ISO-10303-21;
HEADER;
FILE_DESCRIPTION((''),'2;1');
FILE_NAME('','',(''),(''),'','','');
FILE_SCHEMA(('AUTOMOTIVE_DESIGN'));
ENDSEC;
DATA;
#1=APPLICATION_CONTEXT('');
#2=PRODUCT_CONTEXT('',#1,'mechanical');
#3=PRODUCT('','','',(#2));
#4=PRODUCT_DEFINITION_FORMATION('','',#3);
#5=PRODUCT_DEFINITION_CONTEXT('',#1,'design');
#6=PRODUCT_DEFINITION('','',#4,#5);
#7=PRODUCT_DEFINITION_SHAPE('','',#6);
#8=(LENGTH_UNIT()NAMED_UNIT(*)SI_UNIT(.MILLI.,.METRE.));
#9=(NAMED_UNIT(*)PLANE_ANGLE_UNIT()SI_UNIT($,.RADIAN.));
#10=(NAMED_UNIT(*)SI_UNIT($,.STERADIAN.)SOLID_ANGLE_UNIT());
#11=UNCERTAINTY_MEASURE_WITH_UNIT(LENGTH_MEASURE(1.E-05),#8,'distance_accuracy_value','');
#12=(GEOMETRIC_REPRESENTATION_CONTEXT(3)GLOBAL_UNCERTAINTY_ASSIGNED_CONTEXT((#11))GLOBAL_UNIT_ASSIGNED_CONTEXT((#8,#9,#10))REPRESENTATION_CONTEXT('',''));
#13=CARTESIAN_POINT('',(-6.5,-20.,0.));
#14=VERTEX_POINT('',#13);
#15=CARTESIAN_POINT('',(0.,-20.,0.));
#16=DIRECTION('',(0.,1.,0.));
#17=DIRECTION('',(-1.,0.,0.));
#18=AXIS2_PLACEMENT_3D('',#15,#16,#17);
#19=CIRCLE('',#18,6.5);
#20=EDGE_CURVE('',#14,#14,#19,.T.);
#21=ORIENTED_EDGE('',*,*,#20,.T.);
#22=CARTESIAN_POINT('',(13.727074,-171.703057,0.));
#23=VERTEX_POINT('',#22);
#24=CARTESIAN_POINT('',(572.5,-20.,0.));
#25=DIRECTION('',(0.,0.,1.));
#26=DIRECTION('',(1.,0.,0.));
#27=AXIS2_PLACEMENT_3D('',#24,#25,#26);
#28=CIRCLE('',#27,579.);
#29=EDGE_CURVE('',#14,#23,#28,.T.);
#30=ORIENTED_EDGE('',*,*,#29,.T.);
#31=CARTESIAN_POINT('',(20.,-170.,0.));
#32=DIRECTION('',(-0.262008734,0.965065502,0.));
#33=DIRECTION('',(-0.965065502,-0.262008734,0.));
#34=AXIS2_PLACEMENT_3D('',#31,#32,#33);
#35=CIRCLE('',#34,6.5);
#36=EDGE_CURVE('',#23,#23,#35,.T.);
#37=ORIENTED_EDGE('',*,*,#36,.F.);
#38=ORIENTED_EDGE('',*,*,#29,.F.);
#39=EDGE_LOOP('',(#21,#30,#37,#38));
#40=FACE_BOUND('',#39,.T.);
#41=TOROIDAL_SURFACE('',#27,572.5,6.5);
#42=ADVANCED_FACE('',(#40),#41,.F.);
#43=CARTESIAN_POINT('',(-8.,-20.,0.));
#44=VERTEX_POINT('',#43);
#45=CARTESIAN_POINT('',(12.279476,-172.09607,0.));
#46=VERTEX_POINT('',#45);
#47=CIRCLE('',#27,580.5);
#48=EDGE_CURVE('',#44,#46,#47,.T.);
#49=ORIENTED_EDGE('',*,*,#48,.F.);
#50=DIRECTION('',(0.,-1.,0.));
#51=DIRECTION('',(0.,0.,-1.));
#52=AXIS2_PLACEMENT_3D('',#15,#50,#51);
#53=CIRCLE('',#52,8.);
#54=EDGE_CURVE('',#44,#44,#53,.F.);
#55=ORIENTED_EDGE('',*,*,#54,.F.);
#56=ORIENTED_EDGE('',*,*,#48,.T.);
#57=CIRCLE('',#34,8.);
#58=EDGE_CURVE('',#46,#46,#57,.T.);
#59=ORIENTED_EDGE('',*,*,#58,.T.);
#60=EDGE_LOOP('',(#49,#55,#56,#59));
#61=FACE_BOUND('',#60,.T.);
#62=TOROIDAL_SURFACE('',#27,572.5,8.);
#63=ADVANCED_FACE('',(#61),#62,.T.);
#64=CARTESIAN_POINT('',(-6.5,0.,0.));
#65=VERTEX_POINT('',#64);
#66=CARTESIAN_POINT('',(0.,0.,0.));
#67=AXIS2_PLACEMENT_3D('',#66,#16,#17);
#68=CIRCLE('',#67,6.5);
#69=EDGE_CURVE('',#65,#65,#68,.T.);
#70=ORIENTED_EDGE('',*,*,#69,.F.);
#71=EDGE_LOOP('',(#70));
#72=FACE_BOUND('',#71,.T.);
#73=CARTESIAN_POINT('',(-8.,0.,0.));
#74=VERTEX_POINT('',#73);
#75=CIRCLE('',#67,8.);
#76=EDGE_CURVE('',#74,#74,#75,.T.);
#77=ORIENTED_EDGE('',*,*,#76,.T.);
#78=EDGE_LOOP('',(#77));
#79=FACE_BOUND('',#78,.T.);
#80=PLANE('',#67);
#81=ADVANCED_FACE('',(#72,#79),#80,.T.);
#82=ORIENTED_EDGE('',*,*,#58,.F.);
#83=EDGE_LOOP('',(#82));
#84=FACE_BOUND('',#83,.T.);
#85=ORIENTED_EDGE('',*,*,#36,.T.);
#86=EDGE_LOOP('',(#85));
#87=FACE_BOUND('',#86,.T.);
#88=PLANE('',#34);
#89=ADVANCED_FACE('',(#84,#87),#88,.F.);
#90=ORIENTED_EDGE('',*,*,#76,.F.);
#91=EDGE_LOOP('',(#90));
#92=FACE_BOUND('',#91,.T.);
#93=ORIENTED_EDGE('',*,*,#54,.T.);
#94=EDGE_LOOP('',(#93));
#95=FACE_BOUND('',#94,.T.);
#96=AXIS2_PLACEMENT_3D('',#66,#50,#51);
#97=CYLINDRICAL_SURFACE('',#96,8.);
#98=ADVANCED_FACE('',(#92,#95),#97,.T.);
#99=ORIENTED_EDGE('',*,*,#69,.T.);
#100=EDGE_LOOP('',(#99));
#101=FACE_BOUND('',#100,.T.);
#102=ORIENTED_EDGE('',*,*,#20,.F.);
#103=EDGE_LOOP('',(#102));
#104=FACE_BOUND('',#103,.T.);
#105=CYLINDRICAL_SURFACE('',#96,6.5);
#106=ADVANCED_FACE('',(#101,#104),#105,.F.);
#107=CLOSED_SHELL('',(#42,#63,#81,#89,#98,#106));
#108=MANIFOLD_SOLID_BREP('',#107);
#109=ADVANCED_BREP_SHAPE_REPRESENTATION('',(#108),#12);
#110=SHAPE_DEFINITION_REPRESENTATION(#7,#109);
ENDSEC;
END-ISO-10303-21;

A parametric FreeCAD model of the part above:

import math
import FreeCAD as App
import Part
import Sketcher

doc = App.newDocument("Part")
body = doc.addObject("PartDesign::Body", "Body")

# Sketch on XZ plane
sketch1 = body.newObject("Sketcher::SketchObject", "Sketch")
sketch1.AttachmentSupport = (doc.getObject("XZ_Plane"), [""])
sketch1.MapMode = "FlatFace"
sketch1.addGeometry([
    Part.Circle(App.Vector(0, 0, 0), App.Vector(0, 0, 1), 8),
    Part.Circle(App.Vector(0, 0, 0), App.Vector(0, 0, 1), 6),
], False)
sketch1.addConstraint([
    Sketcher.Constraint("Coincident", 0, 3, -1, 1),
    Sketcher.Constraint("Coincident", 1, 3, -1, 1),
    Sketcher.Constraint("Diameter", 0, 16.0),
    Sketcher.Constraint("Diameter", 1, 13.0),
])

# Sketch on XY plane
sketch2 = body.newObject("Sketcher::SketchObject", "Sketch001")
sketch2.AttachmentSupport = (doc.getObject("XY_Plane"), [""])
sketch2.MapMode = "FlatFace"
sketch2.addGeometry([
    Part.LineSegment(App.Vector(0, 0, 0), App.Vector(0, -20, 0)),
    Part.ArcOfCircle(Part.Circle(App.Vector(572, -20, 0), App.Vector(0, 0, 1), 572), math.radians(180), math.radians(195.19)),
], False)
sketch2.addConstraint([
    Sketcher.Constraint("Tangent", 0, 2, 1, 1),
    Sketcher.Constraint("Vertical", 0),
    Sketcher.Constraint("Coincident", 0, 1, -1, 1),
    Sketcher.Constraint("Radius", 1, 572.5),
    Sketcher.Constraint("DistanceY", 0, 2, 0, 1, 20.0),
    Sketcher.Constraint("DistanceX", -1, 1, 1, 2, 20.0),
])
doc.recompute()

additivepipe = body.newObject("PartDesign::AdditivePipe", "AdditivePipe")
additivepipe.Profile = sketch1
additivepipe.Spine = (sketch2, ["Edge1", "Edge2"])

doc.recompute()
